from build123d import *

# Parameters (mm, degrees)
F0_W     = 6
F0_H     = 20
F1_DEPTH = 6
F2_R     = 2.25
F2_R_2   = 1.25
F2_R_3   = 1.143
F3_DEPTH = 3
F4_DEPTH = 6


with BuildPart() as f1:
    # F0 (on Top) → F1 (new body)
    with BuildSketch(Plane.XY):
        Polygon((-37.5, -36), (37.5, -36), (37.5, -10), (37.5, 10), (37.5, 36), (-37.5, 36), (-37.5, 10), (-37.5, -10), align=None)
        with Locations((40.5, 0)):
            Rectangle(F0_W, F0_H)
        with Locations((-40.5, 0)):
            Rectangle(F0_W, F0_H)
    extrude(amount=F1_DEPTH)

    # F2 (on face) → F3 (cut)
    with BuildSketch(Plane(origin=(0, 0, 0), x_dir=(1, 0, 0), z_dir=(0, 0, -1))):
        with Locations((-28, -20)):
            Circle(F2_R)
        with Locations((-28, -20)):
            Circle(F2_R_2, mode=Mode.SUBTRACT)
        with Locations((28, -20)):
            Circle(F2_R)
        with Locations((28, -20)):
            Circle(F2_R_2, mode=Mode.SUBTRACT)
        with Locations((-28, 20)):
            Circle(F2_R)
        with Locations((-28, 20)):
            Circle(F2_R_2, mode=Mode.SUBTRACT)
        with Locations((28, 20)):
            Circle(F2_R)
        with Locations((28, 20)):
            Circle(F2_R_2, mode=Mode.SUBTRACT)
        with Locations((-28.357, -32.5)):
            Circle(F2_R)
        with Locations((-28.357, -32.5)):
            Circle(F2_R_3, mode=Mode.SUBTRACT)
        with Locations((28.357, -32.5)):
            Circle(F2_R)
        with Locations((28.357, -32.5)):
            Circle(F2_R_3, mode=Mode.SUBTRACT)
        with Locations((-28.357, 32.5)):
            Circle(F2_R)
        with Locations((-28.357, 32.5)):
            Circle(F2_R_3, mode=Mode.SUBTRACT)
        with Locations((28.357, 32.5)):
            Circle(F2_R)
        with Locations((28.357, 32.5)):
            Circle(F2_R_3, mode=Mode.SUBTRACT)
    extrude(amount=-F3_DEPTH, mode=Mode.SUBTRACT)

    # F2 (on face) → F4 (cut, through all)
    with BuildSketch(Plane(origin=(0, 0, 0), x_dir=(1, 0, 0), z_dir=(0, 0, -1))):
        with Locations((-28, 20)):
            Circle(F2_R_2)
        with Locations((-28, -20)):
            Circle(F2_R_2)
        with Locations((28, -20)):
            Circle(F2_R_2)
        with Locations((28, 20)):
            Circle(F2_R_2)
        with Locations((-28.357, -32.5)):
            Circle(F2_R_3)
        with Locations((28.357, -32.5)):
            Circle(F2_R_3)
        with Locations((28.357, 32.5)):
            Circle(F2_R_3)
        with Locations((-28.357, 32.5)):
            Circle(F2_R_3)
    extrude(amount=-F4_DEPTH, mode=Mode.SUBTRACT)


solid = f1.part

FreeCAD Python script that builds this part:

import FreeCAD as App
import Part
import Sketcher

doc = App.newDocument("Part")
body = doc.addObject("PartDesign::Body", "Body")

sketch1 = doc.addObject("Sketcher::SketchObject", "Sketch")
body.addObject(sketch1)
sketch1.AttachmentSupport = (doc.XY_Plane, [""])
sketch1.MapMode = "FlatFace"
sketch1.addGeometry([
    Part.LineSegment(App.Vector(-38, -36, 0), App.Vector(38, -36, 0)),
    Part.LineSegment(App.Vector(38, -36, 0), App.Vector(38, -10, 0)),
    Part.LineSegment(App.Vector(38, -10, 0), App.Vector(44, -10, 0)),
    Part.LineSegment(App.Vector(44, -10, 0), App.Vector(44, 10, 0)),
    Part.LineSegment(App.Vector(44, 10, 0), App.Vector(38, 10, 0)),
    Part.LineSegment(App.Vector(38, 10, 0), App.Vector(38, 36, 0)),
    Part.LineSegment(App.Vector(38, 36, 0), App.Vector(-38, 36, 0)),
    Part.LineSegment(App.Vector(-38, 36, 0), App.Vector(-38, 10, 0)),
    Part.LineSegment(App.Vector(-38, 10, 0), App.Vector(-44, 10, 0)),
    Part.LineSegment(App.Vector(-44, 10, 0), App.Vector(-44, -10, 0)),
    Part.LineSegment(App.Vector(-44, -10, 0), App.Vector(-38, -10, 0)),
    Part.LineSegment(App.Vector(-38, -10, 0), App.Vector(-38, -36, 0)),
], False)
sketch1.addConstraint([
    Sketcher.Constraint("Coincident", 0, 2, 1, 1),
    Sketcher.Constraint("Coincident", 1, 2, 2, 1),
    Sketcher.Constraint("Coincident", 2, 2, 3, 1),
    Sketcher.Constraint("Coincident", 3, 2, 4, 1),
    Sketcher.Constraint("Coincident", 4, 2, 5, 1),
    Sketcher.Constraint("Coincident", 5, 2, 6, 1),
    Sketcher.Constraint("Coincident", 6, 2, 7, 1),
    Sketcher.Constraint("Coincident", 7, 2, 8, 1),
    Sketcher.Constraint("Coincident", 8, 2, 9, 1),
    Sketcher.Constraint("Coincident", 9, 2, 10, 1),
    Sketcher.Constraint("Coincident", 10, 2, 11, 1),
    Sketcher.Constraint("Coincident", 11, 2, 0, 1),
    Sketcher.Constraint("Horizontal", 0),
    Sketcher.Constraint("Vertical", 1),
    Sketcher.Constraint("Horizontal", 2),
    Sketcher.Constraint("Vertical", 3),
    Sketcher.Constraint("Horizontal", 4),
    Sketcher.Constraint("Vertical", 5),
    Sketcher.Constraint("Horizontal", 6),
    Sketcher.Constraint("Vertical", 7),
    Sketcher.Constraint("Horizontal", 8),
    Sketcher.Constraint("Vertical", 9),
    Sketcher.Constraint("Horizontal", 10),
    Sketcher.Constraint("Vertical", 11),
    Sketcher.Constraint("Symmetric", 0, 2, 6, 2, -1, 1),
    Sketcher.Constraint("Symmetric", 2, 2, 8, 2, -1, 1),
    Sketcher.Constraint("Symmetric", 4, 2, 10, 2, -1, 1),
    Sketcher.Constraint("Symmetric", 4, 2, 7, 2, -2),
    Sketcher.Constraint("DistanceX", 0, 1, 0, 2, 75.0),
    Sketcher.Constraint("DistanceX", 2, 1, 2, 2, 6.0),
    Sketcher.Constraint("DistanceY", 1, 1, 1, 2, 26.0),
    Sketcher.Constraint("DistanceY", 3, 1, 3, 2, 20.0),
])
pad1 = doc.addObject("PartDesign::Pad", "Pad")
body.addObject(pad1)
pad1.Profile = sketch1
pad1.Length = 6

sketch2 = doc.addObject("Sketcher::SketchObject", "Sketch001")
body.addObject(sketch2)
sketch2.AttachmentSupport = (doc.XY_Plane, [""])
sketch2.MapMode = "FlatFace"
sketch2.addGeometry([
    Part.Circle(App.Vector(-28, 20, 0), App.Vector(0, 0, 1), 2.2),
    Part.Circle(App.Vector(-28, 20, 0), App.Vector(0, 0, 1), 1.2),
    Part.Circle(App.Vector(28, 20, 0), App.Vector(0, 0, 1), 2.2),
    Part.Circle(App.Vector(28, 20, 0), App.Vector(0, 0, 1), 1.2),
    Part.Circle(App.Vector(-28, -20, 0), App.Vector(0, 0, 1), 2.2),
    Part.Circle(App.Vector(-28, -20, 0), App.Vector(0, 0, 1), 1.2),
    Part.Circle(App.Vector(28, -20, 0), App.Vector(0, 0, 1), 2.2),
    Part.Circle(App.Vector(28, -20, 0), App.Vector(0, 0, 1), 1.2),
    Part.Circle(App.Vector(-28.4, 32.5, 0), App.Vector(0, 0, 1), 2.2),
    Part.Circle(App.Vector(-28.4, 32.5, 0), App.Vector(0, 0, 1), 1.1),
    Part.Circle(App.Vector(28.4, 32.5, 0), App.Vector(0, 0, 1), 2.2),
    Part.Circle(App.Vector(28.4, 32.5, 0), App.Vector(0, 0, 1), 1.1),
    Part.Circle(App.Vector(-28.4, -32.5, 0), App.Vector(0, 0, 1), 2.2),
    Part.Circle(App.Vector(-28.4, -32.5, 0), App.Vector(0, 0, 1), 1.1),
    Part.Circle(App.Vector(28.4, -32.5, 0), App.Vector(0, 0, 1), 2.2),
    Part.Circle(App.Vector(28.4, -32.5, 0), App.Vector(0, 0, 1), 1.1),
], False)
sketch2.addConstraint([
    Sketcher.Constraint("Coincident", 1, 3, 0, 3),
    Sketcher.Constraint("Coincident", 3, 3, 2, 3),
    Sketcher.Constraint("Coincident", 5, 3, 4, 3),
    Sketcher.Constraint("Coincident", 7, 3, 6, 3),
    Sketcher.Constraint("Coincident", 9, 3, 8, 3),
    Sketcher.Constraint("Coincident", 11, 3, 10, 3),
    Sketcher.Constraint("Coincident", 13, 3, 12, 3),
    Sketcher.Constraint("Coincident", 15, 3, 14, 3),
    Sketcher.Constraint("Equal", 0, 2),
    Sketcher.Constraint("Equal", 1, 3),
    Sketcher.Constraint("Equal", 2, 4),
    Sketcher.Constraint("Equal", 3, 5),
    Sketcher.Constraint("Equal", 4, 6),
    Sketcher.Constraint("Equal", 5, 7),
    Sketcher.Constraint("Equal", 6, 8),
    Sketcher.Constraint("Equal", 8, 10),
    Sketcher.Constraint("Equal", 9, 11),
    Sketcher.Constraint("Equal", 10, 12),
    Sketcher.Constraint("Equal", 11, 13),
    Sketcher.Constraint("Equal", 12, 14),
    Sketcher.Constraint("Equal", 13, 15),
    Sketcher.Constraint("Symmetric", 2, 3, 4, 3, -1, 1),
    Sketcher.Constraint("Symmetric", 0, 3, 6, 3, -1, 1),
    Sketcher.Constraint("Symmetric", 10, 3, 12, 3, -1, 1),
    Sketcher.Constraint("Symmetric", 8, 3, 14, 3, -1, 1),
    Sketcher.Constraint("Symmetric", 0, 3, 2, 3, -2),
    Sketcher.Constraint("Symmetric", 8, 3, 10, 3, -2),
    Sketcher.Constraint("Diameter", 0, 4.5),
    Sketcher.Constraint("Diameter", 1, 2.5),
    Sketcher.Constraint("Diameter", 9, 2.286),
    Sketcher.Constraint("DistanceX", 0, 3, -1, 1, 28.0),
    Sketcher.Constraint("DistanceY", -1, 1, 0, 3, 20.0),
    Sketcher.Constraint("DistanceY", -1, 1, 8, 3, 32.5),
    Sketcher.Constraint("DistanceX", 8, 3, -1, 1, 28.357),
])
pocket1 = doc.addObject("PartDesign::Pocket", "Pocket")
body.addObject(pocket1)
pocket1.Profile = sketch2
pocket1.Length = 3
pocket1.Reversed = True

sketch3 = doc.addObject("Sketcher::SketchObject", "Sketch002")
body.addObject(sketch3)
sketch3.AttachmentSupport = (doc.XY_Plane, [""])
sketch3.MapMode = "FlatFace"
sketch3.addGeometry([
    Part.Circle(App.Vector(-28, -20, 0), App.Vector(0, 0, 1), 1.2),
    Part.Circle(App.Vector(-28, 20, 0), App.Vector(0, 0, 1), 1.2),
    Part.Circle(App.Vector(28, 20, 0), App.Vector(0, 0, 1), 1.2),
    Part.Circle(App.Vector(28, -20, 0), App.Vector(0, 0, 1), 1.2),
    Part.Circle(App.Vector(-28.4, 32.5, 0), App.Vector(0, 0, 1), 1.1),
    Part.Circle(App.Vector(28.4, 32.5, 0), App.Vector(0, 0, 1), 1.1),
    Part.Circle(App.Vector(28.4, -32.5, 0), App.Vector(0, 0, 1), 1.1),
    Part.Circle(App.Vector(-28.4, -32.5, 0), App.Vector(0, 0, 1), 1.1),
], False)
sketch3.addConstraint([
    Sketcher.Constraint("Equal", 0, 1),
    Sketcher.Constraint("Equal", 1, 2),
    Sketcher.Constraint("Equal", 2, 3),
    Sketcher.Constraint("Equal", 4, 5),
    Sketcher.Constraint("Equal", 5, 6),
    Sketcher.Constraint("Equal", 6, 7),
    Sketcher.Constraint("Symmetric", 0, 3, 2, 3, -1, 1),
    Sketcher.Constraint("Symmetric", 1, 3, 3, 3, -1, 1),
    Sketcher.Constraint("Symmetric", 4, 3, 6, 3, -1, 1),
    Sketcher.Constraint("Symmetric", 5, 3, 7, 3, -1, 1),
    Sketcher.Constraint("Symmetric", 1, 3, 2, 3, -2),
    Sketcher.Constraint("Symmetric", 4, 3, 5, 3, -2),
    Sketcher.Constraint("Diameter", 0, 2.5),
    Sketcher.Constraint("Diameter", 4, 2.286),
    Sketcher.Constraint("DistanceX", 0, 3, -1, 1, 28.0),
    Sketcher.Constraint("DistanceY", 0, 3, -1, 1, 20.0),
    Sketcher.Constraint("DistanceY", 6, 3, 5, 3, 65.0),
    Sketcher.Constraint("DistanceX", 4, 3, -1, 1, 28.357),
])
pocket2 = doc.addObject("PartDesign::Pocket", "Pocket001")
body.addObject(pocket2)
pocket2.Profile = sketch3
pocket2.Type = "ThroughAll"
pocket2.Reversed = True

doc.recompute()
